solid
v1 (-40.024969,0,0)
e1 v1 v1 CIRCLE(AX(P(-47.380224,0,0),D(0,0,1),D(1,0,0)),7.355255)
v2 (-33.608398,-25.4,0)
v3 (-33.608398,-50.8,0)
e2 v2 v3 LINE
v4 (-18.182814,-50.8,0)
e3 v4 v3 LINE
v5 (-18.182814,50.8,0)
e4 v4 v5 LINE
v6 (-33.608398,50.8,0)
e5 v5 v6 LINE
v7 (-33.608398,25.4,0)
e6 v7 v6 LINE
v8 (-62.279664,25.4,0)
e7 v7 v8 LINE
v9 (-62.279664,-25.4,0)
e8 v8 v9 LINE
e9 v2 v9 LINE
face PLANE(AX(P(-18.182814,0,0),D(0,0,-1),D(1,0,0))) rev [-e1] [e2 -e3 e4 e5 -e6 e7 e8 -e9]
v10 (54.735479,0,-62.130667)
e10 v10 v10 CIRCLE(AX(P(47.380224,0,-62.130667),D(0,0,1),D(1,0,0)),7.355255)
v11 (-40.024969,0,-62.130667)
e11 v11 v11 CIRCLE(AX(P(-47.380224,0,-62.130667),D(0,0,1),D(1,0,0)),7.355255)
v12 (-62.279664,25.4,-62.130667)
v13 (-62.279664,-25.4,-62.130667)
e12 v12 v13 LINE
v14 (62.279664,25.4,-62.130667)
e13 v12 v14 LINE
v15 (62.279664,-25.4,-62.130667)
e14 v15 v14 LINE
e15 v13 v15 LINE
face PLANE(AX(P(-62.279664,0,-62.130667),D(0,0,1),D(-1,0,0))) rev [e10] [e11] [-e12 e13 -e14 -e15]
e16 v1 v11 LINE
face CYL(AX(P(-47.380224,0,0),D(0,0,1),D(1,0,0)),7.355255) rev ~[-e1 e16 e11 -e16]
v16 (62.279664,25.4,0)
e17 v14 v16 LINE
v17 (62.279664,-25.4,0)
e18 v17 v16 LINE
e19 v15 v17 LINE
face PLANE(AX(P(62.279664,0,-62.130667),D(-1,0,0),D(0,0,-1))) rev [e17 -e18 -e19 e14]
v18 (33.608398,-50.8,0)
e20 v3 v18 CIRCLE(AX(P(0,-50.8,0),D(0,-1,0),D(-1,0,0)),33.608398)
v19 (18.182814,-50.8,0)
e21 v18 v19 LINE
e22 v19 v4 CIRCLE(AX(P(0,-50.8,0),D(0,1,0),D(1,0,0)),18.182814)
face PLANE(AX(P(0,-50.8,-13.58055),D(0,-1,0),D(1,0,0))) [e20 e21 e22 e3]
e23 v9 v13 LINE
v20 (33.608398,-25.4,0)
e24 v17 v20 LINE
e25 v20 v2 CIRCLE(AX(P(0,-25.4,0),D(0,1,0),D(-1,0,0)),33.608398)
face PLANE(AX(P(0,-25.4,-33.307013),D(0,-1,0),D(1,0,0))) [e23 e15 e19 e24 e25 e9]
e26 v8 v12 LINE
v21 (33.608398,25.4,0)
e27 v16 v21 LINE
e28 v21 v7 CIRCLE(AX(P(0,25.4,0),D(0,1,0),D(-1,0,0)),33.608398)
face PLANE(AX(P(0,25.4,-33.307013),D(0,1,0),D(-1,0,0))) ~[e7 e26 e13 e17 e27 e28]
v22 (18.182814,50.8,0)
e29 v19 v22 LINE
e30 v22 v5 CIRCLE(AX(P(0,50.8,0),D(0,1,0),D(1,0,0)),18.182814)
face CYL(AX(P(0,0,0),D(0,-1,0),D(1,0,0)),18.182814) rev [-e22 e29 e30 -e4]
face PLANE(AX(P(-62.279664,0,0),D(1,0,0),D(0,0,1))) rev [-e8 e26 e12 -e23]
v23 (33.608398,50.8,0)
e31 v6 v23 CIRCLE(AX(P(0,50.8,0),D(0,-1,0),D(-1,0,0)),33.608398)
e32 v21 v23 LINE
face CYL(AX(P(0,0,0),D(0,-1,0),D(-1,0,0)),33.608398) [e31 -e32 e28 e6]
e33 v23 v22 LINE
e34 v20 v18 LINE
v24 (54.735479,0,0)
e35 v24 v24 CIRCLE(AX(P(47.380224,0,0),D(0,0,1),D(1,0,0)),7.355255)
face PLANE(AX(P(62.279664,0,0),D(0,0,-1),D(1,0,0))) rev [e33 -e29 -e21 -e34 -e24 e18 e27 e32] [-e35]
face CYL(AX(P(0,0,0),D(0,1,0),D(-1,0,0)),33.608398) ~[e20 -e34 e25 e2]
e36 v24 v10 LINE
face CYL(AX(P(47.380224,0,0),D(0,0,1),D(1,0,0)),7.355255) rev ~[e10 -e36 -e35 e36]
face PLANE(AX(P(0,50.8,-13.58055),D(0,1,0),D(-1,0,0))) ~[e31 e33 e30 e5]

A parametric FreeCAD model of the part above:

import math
import FreeCAD as App
import Part
import Sketcher

V = App.Vector
Q = App.Units.Quantity

doc = App.newDocument("Part")
params = doc.addObject("Spreadsheet::Sheet", "Params")
for row, (alias, value) in enumerate([
    ("pad1_length", "1 in"),
    ("pad2_length", "2 in"),
], start=1):
    params.set(f"A{row}", alias)
    params.set(f"B{row}", "=" + value)
    params.setAlias(f"B{row}", alias)

body = doc.addObject("PartDesign::Body", "Body")

# Sketch on XZ plane
sketch1 = body.newObject("Sketcher::SketchObject", "Sketch")
sketch1.AttachmentSupport = (doc.getObject("XZ_Plane"), [""])
sketch1.MapMode = "FlatFace"
sketch1.addGeometry(Part.LineSegment(V(-62, 0, 0), V(-62, -62, 0)), False)
sketch1.addGeometry(Part.LineSegment(V(-62, -62, 0), V(62, -62, 0)), False)
sketch1.addGeometry(Part.LineSegment(V(62, -62, 0), V(62, 0, 0)), False)
sketch1.addGeometry(Part.LineSegment(V(62, 0, 0), V(18, 0, 0)), False)
sketch1.addGeometry(Part.ArcOfCircle(Part.Circle(V(0, 0, 0), V(0, 0, 1), 18), math.radians(180), math.radians(360)), False)
sketch1.addGeometry(Part.LineSegment(V(-18, 0, 0), V(-62, 0, 0)), False)
sketch1.addConstraint(Sketcher.Constraint("Coincident", 0, 2, 1, 1))
sketch1.addConstraint(Sketcher.Constraint("Coincident", 1, 2, 2, 1))
sketch1.addConstraint(Sketcher.Constraint("Coincident", 2, 2, 3, 1))
sketch1.addConstraint(Sketcher.Constraint("Coincident", 3, 2, 4, 2))
sketch1.addConstraint(Sketcher.Constraint("Coincident", 4, 1, 5, 1))
sketch1.addConstraint(Sketcher.Constraint("Coincident", 5, 2, 0, 1))
sketch1.addConstraint(Sketcher.Constraint("Vertical", 0))
sketch1.addConstraint(Sketcher.Constraint("Horizontal", 1))
sketch1.addConstraint(Sketcher.Constraint("Vertical", 2))
sketch1.addConstraint(Sketcher.Constraint("Horizontal", 3))
sketch1.addConstraint(Sketcher.Constraint("Horizontal", 5))
sketch1.addConstraint(Sketcher.Constraint("Coincident", 4, 3, -1, 1))
sketch1.addConstraint(Sketcher.Constraint("Symmetric", 2, 2, 5, 2, -1, 1))
sketch1.addConstraint(Sketcher.Constraint("PointOnObject", 2, 2, -1))
sketch1.addConstraint(Sketcher.Constraint("Radius", 4, Q("18.182814 mm")))
sketch1.addConstraint(Sketcher.Constraint("DistanceX", 3, 2, 3, 1, Q("44.09685 mm")))
sketch1.addConstraint(Sketcher.Constraint("DistanceY", 0, 2, 0, 1, Q("62.130667 mm")))
pad1 = body.newObject("PartDesign::Pad", "Pad")
pad1.Profile = sketch1
pad1.setExpression("Length", "Params.pad1_length")

# Sketch on XZ plane
sketch2 = body.newObject("Sketcher::SketchObject", "Sketch001")
sketch2.AttachmentSupport = (doc.getObject("XZ_Plane"), [""])
sketch2.MapMode = "FlatFace"
sketch2.addGeometry(Part.LineSegment(V(-18, 0, 0), V(-34, 0, 0)), False)
sketch2.addGeometry(Part.ArcOfCircle(Part.Circle(V(0, 0, 0), V(0, 0, 1), 34), math.radians(180), math.radians(360)), False)
sketch2.addGeometry(Part.LineSegment(V(34, 0, 0), V(18, 0, 0)), False)
sketch2.addGeometry(Part.ArcOfCircle(Part.Circle(V(0, 0, 0), V(0, 0, 1), 18), math.radians(180), math.radians(360)), False)
sketch2.addConstraint(Sketcher.Constraint("Coincident", 0, 2, 1, 1))
sketch2.addConstraint(Sketcher.Constraint("Coincident", 1, 2, 2, 1))
sketch2.addConstraint(Sketcher.Constraint("Coincident", 2, 2, 3, 2))
sketch2.addConstraint(Sketcher.Constraint("Coincident", 3, 1, 0, 1))
sketch2.addConstraint(Sketcher.Constraint("Horizontal", 0))
sketch2.addConstraint(Sketcher.Constraint("Horizontal", 2))
sketch2.addConstraint(Sketcher.Constraint("Coincident", 1, 3, -1, 1))
sketch2.addConstraint(Sketcher.Constraint("Coincident", 3, 3, -1, 1))
sketch2.addConstraint(Sketcher.Constraint("PointOnObject", 0, 2, -1))
sketch2.addConstraint(Sketcher.Constraint("PointOnObject", 1, 2, -1))
sketch2.addConstraint(Sketcher.Constraint("Radius", 1, Q("33.608398 mm")))
sketch2.addConstraint(Sketcher.Constraint("Radius", 3, Q("18.182814 mm")))
pad2 = body.newObject("PartDesign::Pad", "Pad001")
pad2.Profile = sketch2
pad2.setExpression("Length", "Params.pad2_length")
body2 = doc.addObject("PartDesign::Body", "Body001")
doc.recompute()

body2.BaseFeature = body
doc.recompute()

mirroring = doc.addObject("Part::Mirroring", "Mirroring")
mirroring.Source = body
mirroring.Base = V(0, 0, 0)
mirroring.Normal = V(0, -1, 0)
body3 = doc.addObject("PartDesign::Body", "Body002")
body3.BaseFeature = mirroring
boolean = body2.newObject("PartDesign::Boolean", "Boolean")
boolean.Type = "Fuse"
boolean.addObjects([body3])
doc.recompute()

# Sketch on XY plane
sketch3 = body2.newObject("Sketcher::SketchObject", "Sketch002")
sketch3.AttachmentSupport = (doc.getObject("XY_Plane001"), [""])
sketch3.MapMode = "FlatFace"
sketch3.addGeometry(Part.Circle(V(-47, 0, 0), V(0, 0, 1), 7), False)
sketch3.addGeometry(Part.Circle(V(47, 0, 0), V(0, 0, 1), 7), False)
sketch3.addConstraint(Sketcher.Constraint("Equal", 0, 1))
sketch3.addConstraint(Sketcher.Constraint("Symmetric", 0, 3, 1, 3, -1, 1))
sketch3.addConstraint(Sketcher.Constraint("PointOnObject", 0, 3, -1))
sketch3.addConstraint(Sketcher.Constraint("Diameter", 0, Q("14.71051 mm")))
sketch3.addConstraint(Sketcher.Constraint("DistanceX", 0, 3, -1, 1, Q("47.380224 mm")))
pocket1 = body2.newObject("PartDesign::Pocket", "Pocket")
pocket1.Profile = sketch3
pocket1.Type = "ThroughAll"
mirroring.Visibility = False

doc.recompute()
